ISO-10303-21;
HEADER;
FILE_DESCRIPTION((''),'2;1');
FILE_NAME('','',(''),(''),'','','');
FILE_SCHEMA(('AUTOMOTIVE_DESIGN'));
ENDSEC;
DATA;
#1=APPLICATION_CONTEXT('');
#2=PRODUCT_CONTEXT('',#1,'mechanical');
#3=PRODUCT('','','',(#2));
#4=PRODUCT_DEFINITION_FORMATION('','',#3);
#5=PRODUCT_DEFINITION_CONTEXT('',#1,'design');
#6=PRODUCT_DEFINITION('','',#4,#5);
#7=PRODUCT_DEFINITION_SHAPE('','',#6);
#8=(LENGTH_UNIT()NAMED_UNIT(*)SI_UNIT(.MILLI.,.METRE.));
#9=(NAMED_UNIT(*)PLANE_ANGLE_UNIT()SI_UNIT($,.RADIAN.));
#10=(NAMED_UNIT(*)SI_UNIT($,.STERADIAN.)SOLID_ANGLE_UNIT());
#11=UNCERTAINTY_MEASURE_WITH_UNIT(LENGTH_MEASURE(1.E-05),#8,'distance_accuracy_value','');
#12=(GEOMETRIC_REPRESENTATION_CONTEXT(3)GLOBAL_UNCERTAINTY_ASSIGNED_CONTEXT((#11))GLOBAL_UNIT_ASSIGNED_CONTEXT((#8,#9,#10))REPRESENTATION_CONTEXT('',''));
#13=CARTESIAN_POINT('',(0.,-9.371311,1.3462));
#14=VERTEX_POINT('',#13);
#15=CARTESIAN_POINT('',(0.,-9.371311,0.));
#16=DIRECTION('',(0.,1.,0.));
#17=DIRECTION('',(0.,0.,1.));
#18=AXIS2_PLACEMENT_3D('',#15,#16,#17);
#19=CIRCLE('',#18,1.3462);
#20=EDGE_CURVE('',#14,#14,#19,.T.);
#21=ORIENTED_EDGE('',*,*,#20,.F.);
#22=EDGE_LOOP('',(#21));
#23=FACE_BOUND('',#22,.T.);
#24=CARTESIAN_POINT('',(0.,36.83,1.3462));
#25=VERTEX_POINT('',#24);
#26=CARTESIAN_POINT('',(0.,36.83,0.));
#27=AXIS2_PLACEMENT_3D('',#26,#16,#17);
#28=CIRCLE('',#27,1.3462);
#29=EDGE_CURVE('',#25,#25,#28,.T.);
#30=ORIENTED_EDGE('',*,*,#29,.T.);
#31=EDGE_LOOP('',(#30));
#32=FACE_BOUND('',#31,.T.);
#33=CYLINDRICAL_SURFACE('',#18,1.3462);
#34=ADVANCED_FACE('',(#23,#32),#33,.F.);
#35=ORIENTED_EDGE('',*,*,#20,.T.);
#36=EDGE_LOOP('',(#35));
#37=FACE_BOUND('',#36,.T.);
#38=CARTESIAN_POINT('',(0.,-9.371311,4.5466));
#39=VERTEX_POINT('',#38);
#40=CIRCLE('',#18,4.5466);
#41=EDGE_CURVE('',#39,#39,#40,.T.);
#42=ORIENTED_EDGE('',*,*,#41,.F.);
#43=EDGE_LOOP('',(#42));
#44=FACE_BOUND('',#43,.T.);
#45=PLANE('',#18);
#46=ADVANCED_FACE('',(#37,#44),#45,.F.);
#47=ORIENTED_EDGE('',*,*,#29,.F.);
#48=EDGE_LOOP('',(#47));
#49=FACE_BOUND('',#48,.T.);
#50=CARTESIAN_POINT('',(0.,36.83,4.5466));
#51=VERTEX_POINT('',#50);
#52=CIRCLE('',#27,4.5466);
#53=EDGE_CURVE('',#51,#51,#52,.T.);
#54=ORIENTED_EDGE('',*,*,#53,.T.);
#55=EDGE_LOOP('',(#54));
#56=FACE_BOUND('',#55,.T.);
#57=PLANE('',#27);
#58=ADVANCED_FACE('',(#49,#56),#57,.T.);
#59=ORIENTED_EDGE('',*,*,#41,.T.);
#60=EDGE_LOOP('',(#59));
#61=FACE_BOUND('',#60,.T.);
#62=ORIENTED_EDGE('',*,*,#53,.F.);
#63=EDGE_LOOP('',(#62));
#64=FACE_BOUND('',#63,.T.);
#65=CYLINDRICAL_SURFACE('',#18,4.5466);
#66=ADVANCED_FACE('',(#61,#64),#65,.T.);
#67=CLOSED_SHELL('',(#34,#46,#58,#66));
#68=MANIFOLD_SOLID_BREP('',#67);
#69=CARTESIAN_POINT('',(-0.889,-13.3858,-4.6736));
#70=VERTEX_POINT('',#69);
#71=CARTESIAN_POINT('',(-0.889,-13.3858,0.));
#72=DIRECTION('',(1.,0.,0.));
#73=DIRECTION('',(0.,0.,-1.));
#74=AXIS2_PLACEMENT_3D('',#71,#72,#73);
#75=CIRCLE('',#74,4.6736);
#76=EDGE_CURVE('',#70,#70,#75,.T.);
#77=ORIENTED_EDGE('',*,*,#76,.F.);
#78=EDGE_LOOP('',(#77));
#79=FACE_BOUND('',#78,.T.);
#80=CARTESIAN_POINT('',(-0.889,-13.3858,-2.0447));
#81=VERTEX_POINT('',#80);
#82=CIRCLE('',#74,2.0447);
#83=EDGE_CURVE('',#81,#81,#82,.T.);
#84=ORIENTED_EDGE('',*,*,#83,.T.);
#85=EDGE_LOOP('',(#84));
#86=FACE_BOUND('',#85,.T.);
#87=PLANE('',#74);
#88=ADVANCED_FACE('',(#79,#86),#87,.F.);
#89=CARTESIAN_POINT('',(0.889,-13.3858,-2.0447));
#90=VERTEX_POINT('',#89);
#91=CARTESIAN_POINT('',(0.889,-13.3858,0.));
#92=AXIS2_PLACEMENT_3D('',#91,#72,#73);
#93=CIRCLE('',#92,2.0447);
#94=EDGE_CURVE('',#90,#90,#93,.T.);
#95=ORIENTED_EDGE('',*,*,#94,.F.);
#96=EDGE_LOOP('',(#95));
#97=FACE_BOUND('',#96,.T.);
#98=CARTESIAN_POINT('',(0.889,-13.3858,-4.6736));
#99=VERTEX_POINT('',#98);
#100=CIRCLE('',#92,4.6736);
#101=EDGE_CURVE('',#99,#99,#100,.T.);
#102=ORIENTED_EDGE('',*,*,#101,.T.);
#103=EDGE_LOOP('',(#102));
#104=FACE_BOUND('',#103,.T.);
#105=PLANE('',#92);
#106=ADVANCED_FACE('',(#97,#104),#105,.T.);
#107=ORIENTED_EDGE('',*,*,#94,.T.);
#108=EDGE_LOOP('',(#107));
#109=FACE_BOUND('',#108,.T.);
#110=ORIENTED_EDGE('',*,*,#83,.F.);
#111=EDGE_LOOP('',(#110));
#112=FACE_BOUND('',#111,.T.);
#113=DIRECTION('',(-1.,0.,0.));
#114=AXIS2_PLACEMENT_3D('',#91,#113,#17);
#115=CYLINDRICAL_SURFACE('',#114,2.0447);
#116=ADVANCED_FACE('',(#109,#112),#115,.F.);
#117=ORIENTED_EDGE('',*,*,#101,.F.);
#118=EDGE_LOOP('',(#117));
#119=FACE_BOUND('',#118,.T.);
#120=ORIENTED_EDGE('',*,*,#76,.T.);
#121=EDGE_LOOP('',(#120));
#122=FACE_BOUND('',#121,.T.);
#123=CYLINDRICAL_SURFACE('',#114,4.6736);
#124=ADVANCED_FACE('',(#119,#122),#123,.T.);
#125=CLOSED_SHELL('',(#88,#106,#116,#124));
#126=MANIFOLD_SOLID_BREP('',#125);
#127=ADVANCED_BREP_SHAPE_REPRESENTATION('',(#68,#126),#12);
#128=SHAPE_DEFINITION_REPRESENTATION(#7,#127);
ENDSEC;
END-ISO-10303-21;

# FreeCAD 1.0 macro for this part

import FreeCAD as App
import Part
import Sketcher
Q = App.Units.Quantity

doc = App.newDocument("Part")
body = doc.addObject("PartDesign::Body", "Body")

# Sketch on XZ plane
sketch1 = body.newObject("Sketcher::SketchObject", "Sketch")
sketch1.AttachmentSupport = (doc.getObject("XZ_Plane"), [""])
sketch1.MapMode = "FlatFace"
sketch1.AttachmentOffset = App.Placement(App.Vector(0, 0, -0.05 * 25.4), App.Rotation())
sketch1.addGeometry(Part.Circle(App.Vector(0, 0, 0), App.Vector(0, 0, 1), 4.5), False)
sketch1.addGeometry(Part.Circle(App.Vector(0, 0, 0), App.Vector(0, 0, 1), 1.3), False)
sketch1.addConstraint(Sketcher.Constraint("Coincident", 0, 3, -1, 1))
sketch1.addConstraint(Sketcher.Constraint("Coincident", 1, 3, -1, 1))
sketch1.addConstraint(Sketcher.Constraint("Diameter", 0, Q("0.358 in")))
sketch1.addConstraint(Sketcher.Constraint("Diameter", 1, Q("0.106 in")))
pad1 = body.newObject("PartDesign::Pad", "Pad")
pad1.Profile = sketch1
pad1.Type = "TwoLengths"
pad1.Length = Q("1.4 in")
pad1.Length2 = 10.641311
pad1.Reversed = True
body2 = doc.addObject("PartDesign::Body", "Body001")

# Sketch on YZ plane
sketch2 = body2.newObject("Sketcher::SketchObject", "Sketch001")
sketch2.AttachmentSupport = (doc.getObject("YZ_Plane001"), [""])
sketch2.MapMode = "FlatFace"
sketch2.addGeometry(Part.Circle(App.Vector(-13.4, 0, 0), App.Vector(0, 0, 1), 4.7), False)
sketch2.addGeometry(Part.Circle(App.Vector(-13.4, 0, 0), App.Vector(0, 0, 1), 2), False)
sketch2.addConstraint(Sketcher.Constraint("Coincident", 1, 3, 0, 3))
sketch2.addConstraint(Sketcher.Constraint("PointOnObject", 0, 3, -1))
sketch2.addConstraint(Sketcher.Constraint("Diameter", 0, Q("0.368 in")))
sketch2.addConstraint(Sketcher.Constraint("Diameter", 1, Q("0.161 in")))
sketch2.addConstraint(Sketcher.Constraint("DistanceX", 0, 3, -1, 1, Q("0.527 in")))
pad2 = body2.newObject("PartDesign::Pad", "Pad001")
pad2.Profile = sketch2
pad2.Length = Q("0.07 in")
pad2.Midplane = True

doc.recompute()
